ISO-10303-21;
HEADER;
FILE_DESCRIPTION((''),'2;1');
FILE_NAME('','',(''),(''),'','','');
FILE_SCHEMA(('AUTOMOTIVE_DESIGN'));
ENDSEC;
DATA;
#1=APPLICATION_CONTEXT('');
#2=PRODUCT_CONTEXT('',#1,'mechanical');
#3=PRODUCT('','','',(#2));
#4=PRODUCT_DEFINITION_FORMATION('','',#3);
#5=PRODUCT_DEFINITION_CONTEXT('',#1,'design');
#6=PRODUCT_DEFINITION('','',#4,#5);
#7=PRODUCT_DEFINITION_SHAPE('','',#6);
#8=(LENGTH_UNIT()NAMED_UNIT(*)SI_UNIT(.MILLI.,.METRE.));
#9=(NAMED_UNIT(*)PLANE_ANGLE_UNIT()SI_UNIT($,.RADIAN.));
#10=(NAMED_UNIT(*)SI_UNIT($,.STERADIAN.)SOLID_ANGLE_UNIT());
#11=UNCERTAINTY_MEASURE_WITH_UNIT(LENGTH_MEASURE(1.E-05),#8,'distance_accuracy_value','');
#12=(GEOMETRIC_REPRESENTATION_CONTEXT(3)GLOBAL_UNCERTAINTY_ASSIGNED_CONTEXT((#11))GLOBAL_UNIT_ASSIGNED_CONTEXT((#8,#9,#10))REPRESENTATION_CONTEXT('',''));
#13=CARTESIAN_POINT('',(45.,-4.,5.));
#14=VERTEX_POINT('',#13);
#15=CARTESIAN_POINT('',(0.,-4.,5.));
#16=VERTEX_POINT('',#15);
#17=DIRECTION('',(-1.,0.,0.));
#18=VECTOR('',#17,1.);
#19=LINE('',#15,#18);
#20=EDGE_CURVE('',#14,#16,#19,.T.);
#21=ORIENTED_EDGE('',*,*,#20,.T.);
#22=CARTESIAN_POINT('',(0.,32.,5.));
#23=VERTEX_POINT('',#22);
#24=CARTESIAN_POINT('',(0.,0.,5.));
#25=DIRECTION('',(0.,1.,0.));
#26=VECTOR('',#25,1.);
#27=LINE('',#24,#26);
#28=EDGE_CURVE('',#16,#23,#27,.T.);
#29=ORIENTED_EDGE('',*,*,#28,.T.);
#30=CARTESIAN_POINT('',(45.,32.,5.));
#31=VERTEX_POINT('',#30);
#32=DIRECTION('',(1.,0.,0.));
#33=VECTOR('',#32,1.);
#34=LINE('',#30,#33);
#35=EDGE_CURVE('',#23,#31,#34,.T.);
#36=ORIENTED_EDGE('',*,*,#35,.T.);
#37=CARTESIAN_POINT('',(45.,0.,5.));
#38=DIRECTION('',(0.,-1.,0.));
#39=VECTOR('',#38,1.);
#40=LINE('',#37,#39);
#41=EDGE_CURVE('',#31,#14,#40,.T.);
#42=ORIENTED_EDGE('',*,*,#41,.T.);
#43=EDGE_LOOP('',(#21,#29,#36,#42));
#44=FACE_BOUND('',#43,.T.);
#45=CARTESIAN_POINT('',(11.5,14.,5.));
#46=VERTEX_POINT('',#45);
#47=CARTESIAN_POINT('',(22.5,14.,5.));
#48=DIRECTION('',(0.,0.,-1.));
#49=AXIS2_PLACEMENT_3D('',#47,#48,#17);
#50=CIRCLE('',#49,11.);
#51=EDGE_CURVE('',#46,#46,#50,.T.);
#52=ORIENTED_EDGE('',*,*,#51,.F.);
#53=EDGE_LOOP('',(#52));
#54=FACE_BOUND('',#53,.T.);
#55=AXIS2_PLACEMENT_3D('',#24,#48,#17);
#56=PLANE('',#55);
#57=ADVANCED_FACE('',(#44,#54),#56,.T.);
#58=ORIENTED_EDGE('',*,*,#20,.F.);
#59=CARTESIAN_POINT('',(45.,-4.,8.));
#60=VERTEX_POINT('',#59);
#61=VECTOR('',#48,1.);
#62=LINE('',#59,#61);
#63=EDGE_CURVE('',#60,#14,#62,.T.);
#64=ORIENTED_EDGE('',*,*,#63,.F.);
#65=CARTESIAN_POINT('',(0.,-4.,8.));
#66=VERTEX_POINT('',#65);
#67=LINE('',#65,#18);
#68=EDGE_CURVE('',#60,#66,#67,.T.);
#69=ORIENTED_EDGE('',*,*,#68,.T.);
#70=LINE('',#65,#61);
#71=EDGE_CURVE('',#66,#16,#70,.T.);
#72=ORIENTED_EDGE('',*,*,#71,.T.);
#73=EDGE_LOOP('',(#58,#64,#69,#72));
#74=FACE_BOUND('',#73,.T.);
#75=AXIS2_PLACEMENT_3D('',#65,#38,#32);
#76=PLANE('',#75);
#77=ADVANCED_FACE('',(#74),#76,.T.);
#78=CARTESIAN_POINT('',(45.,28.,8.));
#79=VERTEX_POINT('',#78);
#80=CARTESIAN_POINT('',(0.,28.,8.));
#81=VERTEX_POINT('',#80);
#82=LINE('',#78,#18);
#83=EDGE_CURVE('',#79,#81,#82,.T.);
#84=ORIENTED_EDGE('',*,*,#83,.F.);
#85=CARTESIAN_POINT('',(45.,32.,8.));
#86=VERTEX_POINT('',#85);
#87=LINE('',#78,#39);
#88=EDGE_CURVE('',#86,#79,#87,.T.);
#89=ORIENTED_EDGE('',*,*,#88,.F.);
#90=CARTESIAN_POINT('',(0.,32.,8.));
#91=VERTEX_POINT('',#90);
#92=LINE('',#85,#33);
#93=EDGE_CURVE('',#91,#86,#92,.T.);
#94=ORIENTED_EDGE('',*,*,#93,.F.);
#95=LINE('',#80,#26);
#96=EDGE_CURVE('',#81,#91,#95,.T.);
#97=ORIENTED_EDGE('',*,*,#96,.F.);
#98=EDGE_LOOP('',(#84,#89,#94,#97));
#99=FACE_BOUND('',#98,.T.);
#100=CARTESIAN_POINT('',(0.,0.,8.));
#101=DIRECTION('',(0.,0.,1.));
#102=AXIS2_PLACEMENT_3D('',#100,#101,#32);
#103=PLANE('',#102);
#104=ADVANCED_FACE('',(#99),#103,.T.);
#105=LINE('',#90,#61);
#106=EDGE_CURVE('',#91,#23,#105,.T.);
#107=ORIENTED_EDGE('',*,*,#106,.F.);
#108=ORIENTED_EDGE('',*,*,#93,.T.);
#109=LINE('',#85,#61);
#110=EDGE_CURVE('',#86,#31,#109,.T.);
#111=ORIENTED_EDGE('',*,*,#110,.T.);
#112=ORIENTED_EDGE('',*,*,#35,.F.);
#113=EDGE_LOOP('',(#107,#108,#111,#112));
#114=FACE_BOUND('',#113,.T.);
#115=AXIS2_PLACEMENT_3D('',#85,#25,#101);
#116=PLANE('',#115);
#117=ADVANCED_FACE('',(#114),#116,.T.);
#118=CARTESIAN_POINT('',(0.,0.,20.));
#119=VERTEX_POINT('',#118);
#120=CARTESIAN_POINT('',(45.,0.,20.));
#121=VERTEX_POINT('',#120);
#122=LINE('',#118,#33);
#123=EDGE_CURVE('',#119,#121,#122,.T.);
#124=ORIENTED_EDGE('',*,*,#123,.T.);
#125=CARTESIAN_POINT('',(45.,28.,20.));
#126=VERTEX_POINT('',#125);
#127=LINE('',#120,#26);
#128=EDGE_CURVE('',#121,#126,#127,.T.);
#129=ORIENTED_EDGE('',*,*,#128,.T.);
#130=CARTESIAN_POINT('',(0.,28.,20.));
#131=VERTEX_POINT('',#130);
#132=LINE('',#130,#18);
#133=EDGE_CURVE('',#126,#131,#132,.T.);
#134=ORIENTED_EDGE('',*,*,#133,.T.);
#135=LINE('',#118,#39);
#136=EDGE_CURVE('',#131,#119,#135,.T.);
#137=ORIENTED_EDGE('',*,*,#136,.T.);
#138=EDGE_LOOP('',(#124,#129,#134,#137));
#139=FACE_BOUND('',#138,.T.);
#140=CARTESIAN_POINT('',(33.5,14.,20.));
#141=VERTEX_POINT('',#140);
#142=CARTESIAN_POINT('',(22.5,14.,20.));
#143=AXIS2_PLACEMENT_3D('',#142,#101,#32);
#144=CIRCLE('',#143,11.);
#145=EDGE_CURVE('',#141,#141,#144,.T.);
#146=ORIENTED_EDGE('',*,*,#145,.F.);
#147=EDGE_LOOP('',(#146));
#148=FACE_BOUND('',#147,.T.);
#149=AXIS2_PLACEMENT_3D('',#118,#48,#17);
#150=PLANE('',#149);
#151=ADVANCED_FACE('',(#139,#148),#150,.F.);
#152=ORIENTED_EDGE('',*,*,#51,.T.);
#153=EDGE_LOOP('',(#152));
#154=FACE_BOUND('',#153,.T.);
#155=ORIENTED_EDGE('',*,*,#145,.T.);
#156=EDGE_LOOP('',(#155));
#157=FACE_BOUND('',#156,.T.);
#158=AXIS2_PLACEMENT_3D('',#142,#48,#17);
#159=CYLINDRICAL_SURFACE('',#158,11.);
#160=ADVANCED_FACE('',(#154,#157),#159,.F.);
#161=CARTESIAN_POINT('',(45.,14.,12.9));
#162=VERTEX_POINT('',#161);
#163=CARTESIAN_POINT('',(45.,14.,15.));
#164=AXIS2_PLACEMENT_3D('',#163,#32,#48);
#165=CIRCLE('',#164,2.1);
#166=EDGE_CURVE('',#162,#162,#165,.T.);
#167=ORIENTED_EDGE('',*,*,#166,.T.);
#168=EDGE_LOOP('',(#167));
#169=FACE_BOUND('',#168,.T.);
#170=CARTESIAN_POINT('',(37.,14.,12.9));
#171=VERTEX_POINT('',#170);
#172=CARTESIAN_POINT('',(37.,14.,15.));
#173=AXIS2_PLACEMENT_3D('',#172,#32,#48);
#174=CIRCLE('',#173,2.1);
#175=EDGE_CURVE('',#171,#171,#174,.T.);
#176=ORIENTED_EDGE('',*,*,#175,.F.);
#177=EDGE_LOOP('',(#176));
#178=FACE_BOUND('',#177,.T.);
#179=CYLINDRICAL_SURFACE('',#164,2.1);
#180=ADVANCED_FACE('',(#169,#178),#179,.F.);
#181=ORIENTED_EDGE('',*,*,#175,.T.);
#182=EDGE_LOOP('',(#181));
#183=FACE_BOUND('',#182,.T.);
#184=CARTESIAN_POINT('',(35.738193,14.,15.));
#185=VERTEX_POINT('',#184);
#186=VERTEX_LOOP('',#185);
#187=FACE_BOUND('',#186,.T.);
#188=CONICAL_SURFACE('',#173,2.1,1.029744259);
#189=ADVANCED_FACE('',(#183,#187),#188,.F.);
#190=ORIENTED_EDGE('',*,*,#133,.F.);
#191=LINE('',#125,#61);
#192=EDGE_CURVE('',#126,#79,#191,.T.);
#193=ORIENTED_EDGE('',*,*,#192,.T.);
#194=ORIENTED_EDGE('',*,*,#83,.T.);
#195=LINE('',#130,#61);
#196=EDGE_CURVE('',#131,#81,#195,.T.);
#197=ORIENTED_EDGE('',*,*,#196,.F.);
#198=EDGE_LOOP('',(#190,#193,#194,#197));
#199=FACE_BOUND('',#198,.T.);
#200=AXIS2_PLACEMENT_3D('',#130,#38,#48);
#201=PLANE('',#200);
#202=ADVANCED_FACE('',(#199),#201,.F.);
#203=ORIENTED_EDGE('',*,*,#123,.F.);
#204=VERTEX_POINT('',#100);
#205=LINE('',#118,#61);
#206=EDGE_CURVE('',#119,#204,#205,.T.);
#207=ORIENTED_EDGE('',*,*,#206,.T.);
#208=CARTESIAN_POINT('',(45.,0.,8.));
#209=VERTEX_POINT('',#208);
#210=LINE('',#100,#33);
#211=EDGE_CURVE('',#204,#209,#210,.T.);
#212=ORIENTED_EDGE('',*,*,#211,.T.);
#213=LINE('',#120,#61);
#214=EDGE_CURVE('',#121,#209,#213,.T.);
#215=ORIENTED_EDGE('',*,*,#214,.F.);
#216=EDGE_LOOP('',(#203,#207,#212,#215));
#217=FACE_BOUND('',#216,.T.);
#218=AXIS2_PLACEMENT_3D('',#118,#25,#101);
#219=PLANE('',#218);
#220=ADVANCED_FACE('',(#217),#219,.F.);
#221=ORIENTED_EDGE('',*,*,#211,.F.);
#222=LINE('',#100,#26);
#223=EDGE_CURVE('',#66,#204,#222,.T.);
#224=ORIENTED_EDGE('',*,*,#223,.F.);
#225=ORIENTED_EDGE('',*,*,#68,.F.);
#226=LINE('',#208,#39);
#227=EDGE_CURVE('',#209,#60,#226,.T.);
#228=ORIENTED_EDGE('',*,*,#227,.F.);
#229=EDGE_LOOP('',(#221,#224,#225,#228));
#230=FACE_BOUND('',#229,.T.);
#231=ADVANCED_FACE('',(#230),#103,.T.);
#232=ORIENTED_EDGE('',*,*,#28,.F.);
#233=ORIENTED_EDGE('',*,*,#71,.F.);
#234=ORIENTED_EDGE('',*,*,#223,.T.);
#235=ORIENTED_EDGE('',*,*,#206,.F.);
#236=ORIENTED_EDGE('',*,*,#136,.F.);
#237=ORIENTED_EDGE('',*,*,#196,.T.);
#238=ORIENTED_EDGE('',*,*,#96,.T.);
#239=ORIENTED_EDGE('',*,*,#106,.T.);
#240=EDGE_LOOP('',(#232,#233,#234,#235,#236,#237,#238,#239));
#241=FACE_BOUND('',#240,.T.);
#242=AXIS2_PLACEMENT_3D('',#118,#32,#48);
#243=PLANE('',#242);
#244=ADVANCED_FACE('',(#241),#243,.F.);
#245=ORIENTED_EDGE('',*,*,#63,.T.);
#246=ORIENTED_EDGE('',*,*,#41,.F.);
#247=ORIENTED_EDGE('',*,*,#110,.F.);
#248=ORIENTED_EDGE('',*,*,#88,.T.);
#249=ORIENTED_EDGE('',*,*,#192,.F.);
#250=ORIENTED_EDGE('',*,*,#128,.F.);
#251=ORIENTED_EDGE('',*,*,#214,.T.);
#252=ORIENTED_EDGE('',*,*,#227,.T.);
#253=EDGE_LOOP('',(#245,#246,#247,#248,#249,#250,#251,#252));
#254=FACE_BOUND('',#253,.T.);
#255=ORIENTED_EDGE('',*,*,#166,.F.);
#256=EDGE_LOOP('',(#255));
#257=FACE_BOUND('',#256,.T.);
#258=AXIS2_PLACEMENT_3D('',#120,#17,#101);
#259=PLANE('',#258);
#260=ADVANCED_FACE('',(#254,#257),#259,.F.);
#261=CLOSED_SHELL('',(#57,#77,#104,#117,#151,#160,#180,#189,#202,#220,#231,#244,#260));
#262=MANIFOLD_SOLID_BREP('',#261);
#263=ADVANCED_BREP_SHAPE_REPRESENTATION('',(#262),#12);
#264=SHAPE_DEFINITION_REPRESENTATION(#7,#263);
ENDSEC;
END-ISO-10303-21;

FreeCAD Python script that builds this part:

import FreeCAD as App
import Part
import Sketcher

doc = App.newDocument("Part")
params = doc.addObject("Spreadsheet::Sheet", "Params")
for row, (alias, value) in enumerate([
    ("sketch1_diameter", "22 mm"),
    ("sketch1_width", "45 mm"),
    ("sketch1_height", "28 mm"),
    ("pad1_length", "20 mm"),
    ("sketch2_diameter", "4.2 mm"),
    ("hole_diameter", "4.2 mm"),
    ("hole_depth", "8 mm"),
    ("sketch3_width", "45 mm"),
    ("sketch3_height", "28 mm"),
    ("pocket1_length", "5 mm"),
    ("sketch4_width", "45 mm"),
    ("sketch4_height", "4 mm"),
    ("pad2_length", "3 mm"),
], start=1):
    params.set(f"A{row}", alias)
    params.set(f"B{row}", "=" + value)
    params.setAlias(f"B{row}", alias)

body = doc.addObject("PartDesign::Body", "Body")

sketch1 = body.newObject("Sketcher::SketchObject", "Sketch")
sketch1.AttachmentSupport = (doc.getObject("XY_Plane"), [""])
sketch1.MapMode = "FlatFace"
sketch1.addGeometry(Part.LineSegment(App.Vector(0, 28, 0), App.Vector(0, 0, 0)), False)
sketch1.addGeometry(Part.LineSegment(App.Vector(0, 0, 0), App.Vector(45, 0, 0)), False)
sketch1.addGeometry(Part.LineSegment(App.Vector(45, 0, 0), App.Vector(45, 28, 0)), False)
sketch1.addGeometry(Part.LineSegment(App.Vector(45, 28, 0), App.Vector(0, 28, 0)), False)
sketch1.addGeometry(Part.Circle(App.Vector(22, 14, 0), App.Vector(0, 0, 1), 11), False)
sketch1.addConstraint(Sketcher.Constraint("Coincident", 0, 2, 1, 1))
sketch1.addConstraint(Sketcher.Constraint("Coincident", 1, 2, 2, 1))
sketch1.addConstraint(Sketcher.Constraint("Coincident", 2, 2, 3, 1))
sketch1.addConstraint(Sketcher.Constraint("Coincident", 3, 2, 0, 1))
sketch1.addConstraint(Sketcher.Constraint("Vertical", 0))
sketch1.addConstraint(Sketcher.Constraint("Horizontal", 1))
sketch1.addConstraint(Sketcher.Constraint("Vertical", 2))
sketch1.addConstraint(Sketcher.Constraint("Horizontal", 3))
sketch1.addConstraint(Sketcher.Constraint("Coincident", 0, 2, -1, 1))
sketch1.addConstraint(Sketcher.Constraint("Diameter", 4, 22.0))
sketch1.addConstraint(Sketcher.Constraint("DistanceX", 1, 1, 1, 2, 45.0))
sketch1.addConstraint(Sketcher.Constraint("DistanceY", 0, 2, 0, 1, 28.0))
sketch1.addConstraint(Sketcher.Constraint("DistanceY", -1, 1, 4, 3, 14.0))
sketch1.addConstraint(Sketcher.Constraint("DistanceX", -1, 1, 4, 3, 22.5))
sketch1.setExpression("Constraints[9]", "Params.sketch1_diameter")
sketch1.setExpression("Constraints[10]", "Params.sketch1_width")
sketch1.setExpression("Constraints[11]", "Params.sketch1_height")
pad1 = body.newObject("PartDesign::Pad", "Pad")
pad1.Profile = sketch1
pad1.setExpression("Length", "Params.pad1_length")

sketch2 = body.newObject("Sketcher::SketchObject", "Sketch001")
sketch2.AttachmentSupport = (doc.getObject("YZ_Plane"), [""])
sketch2.MapMode = "FlatFace"
sketch2.AttachmentOffset = App.Placement(App.Vector(0, 0, 45), App.Rotation())
sketch2.addGeometry(Part.Circle(App.Vector(14, 15, 0), App.Vector(0, 0, 1), 2.1), False)
sketch2.addConstraint(Sketcher.Constraint("Diameter", 0, 4.2))
sketch2.addConstraint(Sketcher.Constraint("DistanceX", -1, 1, 0, 3, 14.0))
sketch2.addConstraint(Sketcher.Constraint("DistanceY", -1, 1, 0, 3, 15.0))
sketch2.setExpression("Constraints[0]", "Params.sketch2_diameter")
doc.recompute()
hole = body.newObject("PartDesign::Hole", "Hole")
hole.Profile = sketch2
hole.ThreadType = "None"
hole.setExpression("Diameter", "Params.hole_diameter")
hole.DepthType = "Dimension"
hole.setExpression("Depth", "Params.hole_depth")
hole.DrillPoint = "Angled"
hole.DrillPointAngle = 118

sketch3 = body.newObject("Sketcher::SketchObject", "Sketch002")
sketch3.AttachmentSupport = (doc.getObject("XY_Plane"), [""])
sketch3.MapMode = "FlatFace"
sketch3.addGeometry(Part.LineSegment(App.Vector(45, 28, 0), App.Vector(45, 0, 0)), False)
sketch3.addGeometry(Part.LineSegment(App.Vector(45, 0, 0), App.Vector(0, 0, 0)), False)
sketch3.addGeometry(Part.LineSegment(App.Vector(0, 0, 0), App.Vector(0, 28, 0)), False)
sketch3.addGeometry(Part.LineSegment(App.Vector(0, 28, 0), App.Vector(45, 28, 0)), False)
sketch3.addConstraint(Sketcher.Constraint("Coincident", 0, 2, 1, 1))
sketch3.addConstraint(Sketcher.Constraint("Coincident", 1, 2, 2, 1))
sketch3.addConstraint(Sketcher.Constraint("Coincident", 2, 2, 3, 1))
sketch3.addConstraint(Sketcher.Constraint("Coincident", 3, 2, 0, 1))
sketch3.addConstraint(Sketcher.Constraint("Vertical", 0))
sketch3.addConstraint(Sketcher.Constraint("Horizontal", 1))
sketch3.addConstraint(Sketcher.Constraint("Vertical", 2))
sketch3.addConstraint(Sketcher.Constraint("Horizontal", 3))
sketch3.addConstraint(Sketcher.Constraint("Coincident", 1, 2, -1, 1))
sketch3.addConstraint(Sketcher.Constraint("DistanceX", 1, 2, 1, 1, 45.0))
sketch3.addConstraint(Sketcher.Constraint("DistanceY", 0, 2, 0, 1, 28.0))
sketch3.setExpression("Constraints[9]", "Params.sketch3_width")
sketch3.setExpression("Constraints[10]", "Params.sketch3_height")
pocket1 = body.newObject("PartDesign::Pocket", "Pocket")
pocket1.Profile = sketch3
pocket1.setExpression("Length", "Params.pocket1_length")
pocket1.Reversed = True

sketch4 = body.newObject("Sketcher::SketchObject", "Sketch003")
sketch4.AttachmentSupport = (doc.getObject("XY_Plane"), [""])
sketch4.MapMode = "FlatFace"
sketch4.AttachmentOffset = App.Placement(App.Vector(0, 0, 5), App.Rotation())
sketch4.addGeometry(Part.LineSegment(App.Vector(45, 32, 0), App.Vector(45, 28, 0)), False)
sketch4.addGeometry(Part.LineSegment(App.Vector(45, 28, 0), App.Vector(0, 28, 0)), False)
sketch4.addGeometry(Part.LineSegment(App.Vector(0, 28, 0), App.Vector(0, 32, 0)), False)
sketch4.addGeometry(Part.LineSegment(App.Vector(0, 32, 0), App.Vector(45, 32, 0)), False)
sketch4.addGeometry(Part.LineSegment(App.Vector(45, 0, 0), App.Vector(45, -4, 0)), False)
sketch4.addGeometry(Part.LineSegment(App.Vector(45, -4, 0), App.Vector(0, -4, 0)), False)
sketch4.addGeometry(Part.LineSegment(App.Vector(0, -4, 0), App.Vector(0, 0, 0)), False)
sketch4.addGeometry(Part.LineSegment(App.Vector(0, 0, 0), App.Vector(45, 0, 0)), False)
sketch4.addConstraint(Sketcher.Constraint("Coincident", 0, 2, 1, 1))
sketch4.addConstraint(Sketcher.Constraint("Coincident", 1, 2, 2, 1))
sketch4.addConstraint(Sketcher.Constraint("Coincident", 2, 2, 3, 1))
sketch4.addConstraint(Sketcher.Constraint("Coincident", 3, 2, 0, 1))
sketch4.addConstraint(Sketcher.Constraint("Coincident", 4, 2, 5, 1))
sketch4.addConstraint(Sketcher.Constraint("Coincident", 5, 2, 6, 1))
sketch4.addConstraint(Sketcher.Constraint("Coincident", 6, 2, 7, 1))
sketch4.addConstraint(Sketcher.Constraint("Coincident", 7, 2, 4, 1))
sketch4.addConstraint(Sketcher.Constraint("Vertical", 0))
sketch4.addConstraint(Sketcher.Constraint("Horizontal", 1))
sketch4.addConstraint(Sketcher.Constraint("Vertical", 2))
sketch4.addConstraint(Sketcher.Constraint("Horizontal", 3))
sketch4.addConstraint(Sketcher.Constraint("Vertical", 4))
sketch4.addConstraint(Sketcher.Constraint("Horizontal", 5))
sketch4.addConstraint(Sketcher.Constraint("Vertical", 6))
sketch4.addConstraint(Sketcher.Constraint("Horizontal", 7))
sketch4.addConstraint(Sketcher.Constraint("Coincident", 6, 2, -1, 1))
sketch4.addConstraint(Sketcher.Constraint("PointOnObject", 1, 2, -2))
sketch4.addConstraint(Sketcher.Constraint("Vertical", 3, 2, 4, 2))
sketch4.addConstraint(Sketcher.Constraint("Equal", 2, 4))
sketch4.addConstraint(Sketcher.Constraint("DistanceX", 1, 2, 1, 1, 45.0))
sketch4.addConstraint(Sketcher.Constraint("DistanceY", 0, 2, 0, 1, 4.0))
sketch4.addConstraint(Sketcher.Constraint("DistanceY", -1, 1, 0, 2, 28.0))
sketch4.setExpression("Constraints[20]", "Params.sketch4_width")
sketch4.setExpression("Constraints[21]", "Params.sketch4_height")
pad2 = body.newObject("PartDesign::Pad", "Pad001")
pad2.Profile = sketch4
pad2.setExpression("Length", "Params.pad2_length")

doc.recompute()
